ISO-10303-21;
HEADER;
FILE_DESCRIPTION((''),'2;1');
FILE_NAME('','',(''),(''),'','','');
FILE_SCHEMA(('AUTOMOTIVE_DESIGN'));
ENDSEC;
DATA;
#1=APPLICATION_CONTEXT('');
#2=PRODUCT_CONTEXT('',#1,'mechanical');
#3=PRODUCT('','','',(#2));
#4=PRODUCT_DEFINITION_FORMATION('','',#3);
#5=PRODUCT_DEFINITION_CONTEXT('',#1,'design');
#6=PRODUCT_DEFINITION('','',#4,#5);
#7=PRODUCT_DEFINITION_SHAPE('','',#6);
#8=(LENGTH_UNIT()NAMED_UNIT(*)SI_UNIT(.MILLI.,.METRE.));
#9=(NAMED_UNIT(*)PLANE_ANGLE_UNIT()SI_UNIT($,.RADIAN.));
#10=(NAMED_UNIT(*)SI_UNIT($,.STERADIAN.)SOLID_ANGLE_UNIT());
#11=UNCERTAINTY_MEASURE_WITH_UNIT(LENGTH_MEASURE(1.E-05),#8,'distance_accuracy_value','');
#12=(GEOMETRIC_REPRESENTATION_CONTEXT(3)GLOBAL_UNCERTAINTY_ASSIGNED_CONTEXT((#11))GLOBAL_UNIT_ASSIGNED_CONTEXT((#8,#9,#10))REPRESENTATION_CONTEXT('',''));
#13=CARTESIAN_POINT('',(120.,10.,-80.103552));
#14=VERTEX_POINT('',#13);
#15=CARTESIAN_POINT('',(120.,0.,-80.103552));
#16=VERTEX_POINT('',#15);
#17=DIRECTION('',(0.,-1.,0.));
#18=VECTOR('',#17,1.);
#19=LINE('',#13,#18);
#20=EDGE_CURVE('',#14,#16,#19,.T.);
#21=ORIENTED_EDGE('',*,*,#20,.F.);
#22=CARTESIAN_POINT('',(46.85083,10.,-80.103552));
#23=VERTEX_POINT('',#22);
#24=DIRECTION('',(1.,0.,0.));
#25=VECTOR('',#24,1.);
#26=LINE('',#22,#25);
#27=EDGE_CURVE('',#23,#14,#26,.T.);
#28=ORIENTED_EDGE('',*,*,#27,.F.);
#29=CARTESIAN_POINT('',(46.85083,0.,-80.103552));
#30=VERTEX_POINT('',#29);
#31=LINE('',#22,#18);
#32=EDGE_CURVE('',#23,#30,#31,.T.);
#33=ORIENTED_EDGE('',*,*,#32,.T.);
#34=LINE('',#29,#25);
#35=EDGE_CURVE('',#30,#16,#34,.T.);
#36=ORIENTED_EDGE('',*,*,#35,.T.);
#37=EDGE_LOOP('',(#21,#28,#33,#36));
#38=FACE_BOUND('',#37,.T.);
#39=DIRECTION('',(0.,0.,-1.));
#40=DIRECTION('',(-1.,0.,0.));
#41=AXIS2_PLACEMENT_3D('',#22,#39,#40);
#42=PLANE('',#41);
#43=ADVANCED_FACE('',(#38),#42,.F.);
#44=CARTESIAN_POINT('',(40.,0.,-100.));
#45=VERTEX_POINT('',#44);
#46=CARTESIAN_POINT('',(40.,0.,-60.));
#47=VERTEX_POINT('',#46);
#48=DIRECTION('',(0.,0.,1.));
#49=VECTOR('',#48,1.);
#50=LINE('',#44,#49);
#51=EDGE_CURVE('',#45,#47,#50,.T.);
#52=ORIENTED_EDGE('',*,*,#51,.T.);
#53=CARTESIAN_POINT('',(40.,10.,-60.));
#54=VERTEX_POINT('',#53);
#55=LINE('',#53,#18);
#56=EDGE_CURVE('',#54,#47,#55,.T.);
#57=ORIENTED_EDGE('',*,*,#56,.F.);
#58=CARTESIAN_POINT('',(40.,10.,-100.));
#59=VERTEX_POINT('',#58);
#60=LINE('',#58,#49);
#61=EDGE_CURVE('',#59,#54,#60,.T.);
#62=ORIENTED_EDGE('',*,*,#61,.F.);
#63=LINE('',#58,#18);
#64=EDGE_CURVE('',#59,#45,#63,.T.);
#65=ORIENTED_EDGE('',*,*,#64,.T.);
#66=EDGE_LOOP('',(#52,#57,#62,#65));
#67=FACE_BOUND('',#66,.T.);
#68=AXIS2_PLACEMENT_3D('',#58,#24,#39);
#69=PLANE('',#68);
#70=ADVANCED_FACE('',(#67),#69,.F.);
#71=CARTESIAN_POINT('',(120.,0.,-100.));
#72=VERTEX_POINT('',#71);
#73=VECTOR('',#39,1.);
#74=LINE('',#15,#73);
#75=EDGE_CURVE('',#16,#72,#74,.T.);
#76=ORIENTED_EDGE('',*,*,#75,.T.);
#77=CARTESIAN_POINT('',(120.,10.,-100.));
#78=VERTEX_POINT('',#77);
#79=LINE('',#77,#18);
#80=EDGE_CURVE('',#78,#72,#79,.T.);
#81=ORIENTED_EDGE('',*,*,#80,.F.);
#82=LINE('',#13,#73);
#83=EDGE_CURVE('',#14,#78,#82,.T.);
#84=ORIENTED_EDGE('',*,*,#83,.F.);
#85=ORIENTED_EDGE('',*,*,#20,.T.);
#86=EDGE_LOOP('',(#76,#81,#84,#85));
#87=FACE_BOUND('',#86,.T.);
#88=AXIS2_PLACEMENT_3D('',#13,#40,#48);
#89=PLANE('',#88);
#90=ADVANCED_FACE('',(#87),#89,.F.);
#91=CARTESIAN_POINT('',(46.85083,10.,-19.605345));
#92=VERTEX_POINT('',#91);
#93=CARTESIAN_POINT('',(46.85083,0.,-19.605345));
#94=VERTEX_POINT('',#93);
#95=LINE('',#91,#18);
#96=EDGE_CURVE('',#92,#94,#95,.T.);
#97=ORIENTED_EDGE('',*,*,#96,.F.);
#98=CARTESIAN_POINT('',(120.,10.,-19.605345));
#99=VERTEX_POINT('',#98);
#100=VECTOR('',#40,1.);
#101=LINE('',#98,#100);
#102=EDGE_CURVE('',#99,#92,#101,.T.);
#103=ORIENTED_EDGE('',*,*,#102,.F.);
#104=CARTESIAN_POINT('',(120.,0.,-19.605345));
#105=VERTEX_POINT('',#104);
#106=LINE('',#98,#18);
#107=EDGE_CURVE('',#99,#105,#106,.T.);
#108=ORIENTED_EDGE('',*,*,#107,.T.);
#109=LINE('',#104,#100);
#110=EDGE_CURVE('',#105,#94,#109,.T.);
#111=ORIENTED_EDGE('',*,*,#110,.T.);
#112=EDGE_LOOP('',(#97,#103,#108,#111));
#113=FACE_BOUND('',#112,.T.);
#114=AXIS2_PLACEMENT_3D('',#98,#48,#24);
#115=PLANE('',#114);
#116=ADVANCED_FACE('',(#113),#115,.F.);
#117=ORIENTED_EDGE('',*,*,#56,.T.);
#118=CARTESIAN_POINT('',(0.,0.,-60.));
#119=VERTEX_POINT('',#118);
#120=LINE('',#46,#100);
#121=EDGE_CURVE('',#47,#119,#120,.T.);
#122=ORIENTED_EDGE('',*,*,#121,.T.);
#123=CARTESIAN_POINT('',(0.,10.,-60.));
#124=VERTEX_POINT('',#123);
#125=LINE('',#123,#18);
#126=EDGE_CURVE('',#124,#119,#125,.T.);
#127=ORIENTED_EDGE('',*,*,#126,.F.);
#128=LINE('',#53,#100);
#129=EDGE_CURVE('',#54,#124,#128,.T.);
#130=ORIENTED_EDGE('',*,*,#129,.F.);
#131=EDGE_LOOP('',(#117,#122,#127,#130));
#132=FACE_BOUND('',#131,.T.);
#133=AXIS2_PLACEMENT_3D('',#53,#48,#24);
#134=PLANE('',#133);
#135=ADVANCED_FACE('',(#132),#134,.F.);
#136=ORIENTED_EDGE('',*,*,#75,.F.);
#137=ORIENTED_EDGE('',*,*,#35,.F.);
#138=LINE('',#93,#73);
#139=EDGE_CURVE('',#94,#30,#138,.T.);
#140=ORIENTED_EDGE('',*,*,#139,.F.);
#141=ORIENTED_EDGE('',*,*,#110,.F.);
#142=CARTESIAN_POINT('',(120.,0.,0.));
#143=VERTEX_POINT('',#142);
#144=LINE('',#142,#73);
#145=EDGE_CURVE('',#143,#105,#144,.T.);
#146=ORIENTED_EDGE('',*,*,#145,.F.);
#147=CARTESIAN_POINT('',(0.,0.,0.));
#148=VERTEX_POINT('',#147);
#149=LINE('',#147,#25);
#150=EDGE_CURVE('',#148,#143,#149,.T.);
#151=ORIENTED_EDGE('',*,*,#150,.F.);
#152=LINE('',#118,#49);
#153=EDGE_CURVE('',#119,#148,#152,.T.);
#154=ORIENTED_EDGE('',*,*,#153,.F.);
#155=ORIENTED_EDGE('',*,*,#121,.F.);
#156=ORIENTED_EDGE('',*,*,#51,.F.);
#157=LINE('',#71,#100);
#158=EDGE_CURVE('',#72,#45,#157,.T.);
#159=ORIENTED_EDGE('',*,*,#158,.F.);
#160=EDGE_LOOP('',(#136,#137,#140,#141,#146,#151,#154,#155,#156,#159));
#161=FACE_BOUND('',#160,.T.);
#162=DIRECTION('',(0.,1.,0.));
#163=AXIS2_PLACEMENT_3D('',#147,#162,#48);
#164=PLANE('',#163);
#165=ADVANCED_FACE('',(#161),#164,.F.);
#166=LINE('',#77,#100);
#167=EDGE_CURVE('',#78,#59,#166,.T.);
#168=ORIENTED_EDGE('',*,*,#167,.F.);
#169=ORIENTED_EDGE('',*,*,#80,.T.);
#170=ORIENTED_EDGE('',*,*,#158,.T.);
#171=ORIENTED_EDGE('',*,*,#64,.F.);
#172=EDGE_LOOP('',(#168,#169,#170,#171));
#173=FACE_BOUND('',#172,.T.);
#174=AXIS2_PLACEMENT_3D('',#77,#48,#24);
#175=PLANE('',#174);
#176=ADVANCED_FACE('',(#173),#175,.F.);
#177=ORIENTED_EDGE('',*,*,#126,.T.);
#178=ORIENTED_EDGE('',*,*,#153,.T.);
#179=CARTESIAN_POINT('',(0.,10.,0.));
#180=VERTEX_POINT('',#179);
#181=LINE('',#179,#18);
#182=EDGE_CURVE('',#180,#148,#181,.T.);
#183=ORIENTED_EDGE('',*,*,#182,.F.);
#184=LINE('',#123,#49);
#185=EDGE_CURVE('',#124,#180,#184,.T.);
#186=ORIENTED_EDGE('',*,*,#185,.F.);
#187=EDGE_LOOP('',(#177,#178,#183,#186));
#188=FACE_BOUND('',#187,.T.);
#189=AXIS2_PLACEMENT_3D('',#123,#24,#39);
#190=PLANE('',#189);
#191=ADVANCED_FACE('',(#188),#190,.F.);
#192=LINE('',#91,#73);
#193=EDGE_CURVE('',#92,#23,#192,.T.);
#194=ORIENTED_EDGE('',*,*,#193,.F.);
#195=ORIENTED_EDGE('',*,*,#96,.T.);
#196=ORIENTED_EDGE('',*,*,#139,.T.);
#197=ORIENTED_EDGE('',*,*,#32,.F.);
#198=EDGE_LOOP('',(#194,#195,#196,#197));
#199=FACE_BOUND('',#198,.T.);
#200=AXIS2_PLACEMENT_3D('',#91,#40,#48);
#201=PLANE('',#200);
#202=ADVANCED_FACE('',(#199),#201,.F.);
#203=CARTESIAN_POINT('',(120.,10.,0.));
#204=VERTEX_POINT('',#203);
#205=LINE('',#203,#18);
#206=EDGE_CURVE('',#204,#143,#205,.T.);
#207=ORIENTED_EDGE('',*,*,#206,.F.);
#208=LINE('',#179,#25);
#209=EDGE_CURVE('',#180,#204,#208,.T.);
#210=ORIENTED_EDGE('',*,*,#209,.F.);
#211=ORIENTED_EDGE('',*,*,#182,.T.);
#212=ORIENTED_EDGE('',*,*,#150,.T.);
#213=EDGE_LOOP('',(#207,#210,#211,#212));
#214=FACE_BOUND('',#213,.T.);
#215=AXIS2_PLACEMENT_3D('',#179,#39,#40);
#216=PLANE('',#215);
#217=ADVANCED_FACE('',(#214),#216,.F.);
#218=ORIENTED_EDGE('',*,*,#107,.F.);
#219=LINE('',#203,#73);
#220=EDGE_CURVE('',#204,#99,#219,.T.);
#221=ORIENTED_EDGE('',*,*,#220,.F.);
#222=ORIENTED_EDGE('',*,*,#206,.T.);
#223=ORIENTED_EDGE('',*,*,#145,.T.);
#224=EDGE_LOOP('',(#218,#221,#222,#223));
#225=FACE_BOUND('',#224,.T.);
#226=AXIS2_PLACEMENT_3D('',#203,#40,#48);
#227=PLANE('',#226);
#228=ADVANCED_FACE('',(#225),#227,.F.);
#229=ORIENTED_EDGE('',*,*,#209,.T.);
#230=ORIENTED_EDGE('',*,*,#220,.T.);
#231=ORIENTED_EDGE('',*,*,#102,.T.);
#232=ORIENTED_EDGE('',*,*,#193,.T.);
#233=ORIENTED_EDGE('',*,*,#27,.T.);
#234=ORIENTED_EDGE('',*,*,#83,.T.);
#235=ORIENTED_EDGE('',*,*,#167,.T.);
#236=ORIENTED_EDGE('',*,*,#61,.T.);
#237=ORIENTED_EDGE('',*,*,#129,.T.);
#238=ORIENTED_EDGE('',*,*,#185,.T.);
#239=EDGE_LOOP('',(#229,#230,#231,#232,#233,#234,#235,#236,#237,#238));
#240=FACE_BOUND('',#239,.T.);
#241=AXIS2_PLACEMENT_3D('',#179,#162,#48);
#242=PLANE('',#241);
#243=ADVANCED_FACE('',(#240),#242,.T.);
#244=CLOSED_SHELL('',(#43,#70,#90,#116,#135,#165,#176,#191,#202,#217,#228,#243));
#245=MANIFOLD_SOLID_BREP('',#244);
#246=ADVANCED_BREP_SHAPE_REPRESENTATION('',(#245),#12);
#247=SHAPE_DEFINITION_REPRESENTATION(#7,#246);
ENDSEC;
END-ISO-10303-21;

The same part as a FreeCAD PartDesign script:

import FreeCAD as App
import Part
import Sketcher

V = App.Vector
Q = App.Units.Quantity

doc = App.newDocument("Part")
body = doc.addObject("PartDesign::Body", "Body")

# Sketch on XZ plane
sketch1 = doc.addObject("Sketcher::SketchObject", "Sketch")
body.addObject(sketch1)
sketch1.AttachmentSupport = (doc.XZ_Plane, [""])
sketch1.MapMode = "FlatFace"
sketch1.addGeometry([
    Part.LineSegment(V(0, 0, 0), V(120, 0, 0)),  # 0
    Part.LineSegment(V(120, 0, 0), V(120, -20, 0)),  # 1
    Part.LineSegment(V(120, -20, 0), V(47, -20, 0)),  # 2
    Part.LineSegment(V(47, -20, 0), V(47, -80, 0)),  # 3
    Part.LineSegment(V(47, -80, 0), V(120, -80, 0)),  # 4
    Part.LineSegment(V(120, -80, 0), V(120, -100, 0)),  # 5
    Part.LineSegment(V(120, -100, 0), V(40, -100, 0)),  # 6
    Part.LineSegment(V(40, -100, 0), V(40, -60, 0)),  # 7
    Part.LineSegment(V(40, -60, 0), V(0, -60, 0)),  # 8
    Part.LineSegment(V(0, -60, 0), V(0, 0, 0)),  # 9
], False)
sketch1.addConstraint([
    Sketcher.Constraint("Coincident", 0, 2, 1, 1),
    Sketcher.Constraint("Coincident", 1, 2, 2, 1),
    Sketcher.Constraint("Coincident", 2, 2, 3, 1),
    Sketcher.Constraint("Coincident", 3, 2, 4, 1),
    Sketcher.Constraint("Coincident", 4, 2, 5, 1),
    Sketcher.Constraint("Coincident", 5, 2, 6, 1),
    Sketcher.Constraint("Coincident", 6, 2, 7, 1),
    Sketcher.Constraint("Coincident", 7, 2, 8, 1),
    Sketcher.Constraint("Coincident", 8, 2, 9, 1),
    Sketcher.Constraint("Coincident", 9, 2, 0, 1),
    Sketcher.Constraint("Horizontal", 0),
    Sketcher.Constraint("Vertical", 1),
    Sketcher.Constraint("Horizontal", 2),
    Sketcher.Constraint("Vertical", 3),
    Sketcher.Constraint("Horizontal", 4),
    Sketcher.Constraint("Vertical", 5),
    Sketcher.Constraint("Horizontal", 6),
    Sketcher.Constraint("Vertical", 7),
    Sketcher.Constraint("Horizontal", 8),
    Sketcher.Constraint("Vertical", 9),
    Sketcher.Constraint("Coincident", 9, 2, -1, 1),
    Sketcher.Constraint("Vertical", 1, 2, 4, 2),
    Sketcher.Constraint("Equal", 8, 7),
    Sketcher.Constraint("DistanceX", 0, 1, 0, 2, Q("120 mm")),
    Sketcher.Constraint("DistanceX", 6, 2, 6, 1, Q("80 mm")),
    Sketcher.Constraint("DistanceY", 9, 1, 9, 2, Q("60 mm")),
    Sketcher.Constraint("DistanceX", 2, 2, 2, 1, Q("73.14917 mm")),
    Sketcher.Constraint("DistanceY", 1, 2, 1, 1, Q("19.605345 mm")),
    Sketcher.Constraint("DistanceY", 3, 2, 3, 1, Q("60.498208 mm")),
])
pad1 = doc.addObject("PartDesign::Pad", "Pad")
body.addObject(pad1)
pad1.Profile = sketch1
pad1.Length = 10
pad1.Reversed = True

doc.recompute()
